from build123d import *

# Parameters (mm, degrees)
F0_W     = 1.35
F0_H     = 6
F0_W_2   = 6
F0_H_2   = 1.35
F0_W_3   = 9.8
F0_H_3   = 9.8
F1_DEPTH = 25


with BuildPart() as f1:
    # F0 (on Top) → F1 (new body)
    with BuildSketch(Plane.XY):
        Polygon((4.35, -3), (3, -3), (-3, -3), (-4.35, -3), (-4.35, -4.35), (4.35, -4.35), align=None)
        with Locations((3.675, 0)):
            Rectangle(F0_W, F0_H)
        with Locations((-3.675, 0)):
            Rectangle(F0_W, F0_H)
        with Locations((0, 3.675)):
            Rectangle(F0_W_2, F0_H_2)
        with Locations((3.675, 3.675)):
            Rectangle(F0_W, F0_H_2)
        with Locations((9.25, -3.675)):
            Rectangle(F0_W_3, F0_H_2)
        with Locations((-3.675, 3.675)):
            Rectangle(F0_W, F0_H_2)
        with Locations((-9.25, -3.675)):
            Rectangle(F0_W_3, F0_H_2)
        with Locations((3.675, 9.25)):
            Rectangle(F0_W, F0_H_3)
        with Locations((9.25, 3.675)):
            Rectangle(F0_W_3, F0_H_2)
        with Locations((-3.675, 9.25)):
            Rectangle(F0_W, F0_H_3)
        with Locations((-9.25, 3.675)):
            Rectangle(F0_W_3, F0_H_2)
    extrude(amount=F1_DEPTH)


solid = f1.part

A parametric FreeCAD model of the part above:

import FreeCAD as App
import Part
import Sketcher
from FreeCAD import Vector


def add_polygon(sketch, points):
    """Adds a closed chain of lines whose ends are joined by coincident constraints."""
    first, n = sketch.GeometryCount, len(points)
    for a, b in zip(points, points[1:] + points[:1]):
        sketch.addGeometry(Part.LineSegment(App.Vector(*a, 0), App.Vector(*b, 0)), False)
    for i in range(n):
        sketch.addConstraint(Sketcher.Constraint("Coincident", first + i, 2, first + (i + 1) % n, 1))

doc = App.newDocument("Part")
body = doc.addObject("PartDesign::Body", "Body")

# Sketch on XY plane
sketch1 = body.newObject("Sketcher::SketchObject", "Sketch")
sketch1.AttachmentSupport = (doc.getObject("XY_Plane"), [""])
sketch1.MapMode = "FlatFace"
add_polygon(sketch1, [(3, 4.3), (-3, 4.3), (-3, 14.2), (-4.3, 14.2), (-4.3, 4.3), (-14.2, 4.3), (-14.2, 3), (-4.3, 3), (-4.3, -3), (-14.2, -3), (-14.2, -4.3), (14.2, -4.3), (14.2, -3), (4.3, -3), (4.3, 3), (14.2, 3), (14.2, 4.3), (4.3, 4.3), (4.3, 14.2), (3, 14.2)])  # lines 0-19
add_polygon(sketch1, [(-3, -3), (-3, 3), (3, 3), (3, -3)])  # lines 20-23
sketch1.addConstraint([
    Sketcher.Constraint("Horizontal", 0),
    Sketcher.Constraint("Vertical", 1),
    Sketcher.Constraint("Horizontal", 2),
    Sketcher.Constraint("Vertical", 3),
    Sketcher.Constraint("Horizontal", 4),
    Sketcher.Constraint("Vertical", 5),
    Sketcher.Constraint("Horizontal", 6),
    Sketcher.Constraint("Vertical", 7),
    Sketcher.Constraint("Horizontal", 8),
    Sketcher.Constraint("Vertical", 9),
    Sketcher.Constraint("Horizontal", 10),
    Sketcher.Constraint("Vertical", 11),
    Sketcher.Constraint("Horizontal", 12),
    Sketcher.Constraint("Vertical", 13),
    Sketcher.Constraint("Horizontal", 14),
    Sketcher.Constraint("Vertical", 15),
    Sketcher.Constraint("Horizontal", 16),
    Sketcher.Constraint("Vertical", 17),
    Sketcher.Constraint("Horizontal", 18),
    Sketcher.Constraint("Vertical", 19),
    Sketcher.Constraint("Vertical", 20),
    Sketcher.Constraint("Horizontal", 21),
    Sketcher.Constraint("Vertical", 22),
    Sketcher.Constraint("Horizontal", 23),
    Sketcher.Constraint("Symmetric", 4, 2, 10, 2, -1, 1),
    Sketcher.Constraint("Symmetric", 6, 2, 12, 2, -1, 1),
    Sketcher.Constraint("Symmetric", 8, 2, 14, 2, -1, 1),
    Sketcher.Constraint("Symmetric", 20, 2, 22, 2, -1, 1),
    Sketcher.Constraint("Symmetric", 8, 2, 11, 2, -2),
    Sketcher.Constraint("Symmetric", 3, 2, 16, 2, -2),
    Sketcher.Constraint("Symmetric", 1, 2, 18, 2, -2),
    Sketcher.Constraint("Horizontal", 0, 2, 3, 2),
    Sketcher.Constraint("Horizontal", 14, 2, 20, 2),
    Sketcher.Constraint("Vertical", 3, 2, 6, 2),
    Sketcher.Constraint("Vertical", 1, 2, 20, 2),
    Sketcher.Constraint("Equal", 16, 1),
    Sketcher.Constraint("Equal", 18, 5),
    Sketcher.Constraint("Equal", 23, 7),
    Sketcher.Constraint("DistanceX", 0, 2, 0, 1, 6.0),
    Sketcher.Constraint("DistanceX", 4, 2, 4, 1, 9.8),
    Sketcher.Constraint("DistanceX", 10, 1, 10, 2, 28.3),
])
pad1 = body.newObject("PartDesign::Pad", "Pad")
pad1.Profile = sketch1
pad1.Length = 25

doc.recompute()
